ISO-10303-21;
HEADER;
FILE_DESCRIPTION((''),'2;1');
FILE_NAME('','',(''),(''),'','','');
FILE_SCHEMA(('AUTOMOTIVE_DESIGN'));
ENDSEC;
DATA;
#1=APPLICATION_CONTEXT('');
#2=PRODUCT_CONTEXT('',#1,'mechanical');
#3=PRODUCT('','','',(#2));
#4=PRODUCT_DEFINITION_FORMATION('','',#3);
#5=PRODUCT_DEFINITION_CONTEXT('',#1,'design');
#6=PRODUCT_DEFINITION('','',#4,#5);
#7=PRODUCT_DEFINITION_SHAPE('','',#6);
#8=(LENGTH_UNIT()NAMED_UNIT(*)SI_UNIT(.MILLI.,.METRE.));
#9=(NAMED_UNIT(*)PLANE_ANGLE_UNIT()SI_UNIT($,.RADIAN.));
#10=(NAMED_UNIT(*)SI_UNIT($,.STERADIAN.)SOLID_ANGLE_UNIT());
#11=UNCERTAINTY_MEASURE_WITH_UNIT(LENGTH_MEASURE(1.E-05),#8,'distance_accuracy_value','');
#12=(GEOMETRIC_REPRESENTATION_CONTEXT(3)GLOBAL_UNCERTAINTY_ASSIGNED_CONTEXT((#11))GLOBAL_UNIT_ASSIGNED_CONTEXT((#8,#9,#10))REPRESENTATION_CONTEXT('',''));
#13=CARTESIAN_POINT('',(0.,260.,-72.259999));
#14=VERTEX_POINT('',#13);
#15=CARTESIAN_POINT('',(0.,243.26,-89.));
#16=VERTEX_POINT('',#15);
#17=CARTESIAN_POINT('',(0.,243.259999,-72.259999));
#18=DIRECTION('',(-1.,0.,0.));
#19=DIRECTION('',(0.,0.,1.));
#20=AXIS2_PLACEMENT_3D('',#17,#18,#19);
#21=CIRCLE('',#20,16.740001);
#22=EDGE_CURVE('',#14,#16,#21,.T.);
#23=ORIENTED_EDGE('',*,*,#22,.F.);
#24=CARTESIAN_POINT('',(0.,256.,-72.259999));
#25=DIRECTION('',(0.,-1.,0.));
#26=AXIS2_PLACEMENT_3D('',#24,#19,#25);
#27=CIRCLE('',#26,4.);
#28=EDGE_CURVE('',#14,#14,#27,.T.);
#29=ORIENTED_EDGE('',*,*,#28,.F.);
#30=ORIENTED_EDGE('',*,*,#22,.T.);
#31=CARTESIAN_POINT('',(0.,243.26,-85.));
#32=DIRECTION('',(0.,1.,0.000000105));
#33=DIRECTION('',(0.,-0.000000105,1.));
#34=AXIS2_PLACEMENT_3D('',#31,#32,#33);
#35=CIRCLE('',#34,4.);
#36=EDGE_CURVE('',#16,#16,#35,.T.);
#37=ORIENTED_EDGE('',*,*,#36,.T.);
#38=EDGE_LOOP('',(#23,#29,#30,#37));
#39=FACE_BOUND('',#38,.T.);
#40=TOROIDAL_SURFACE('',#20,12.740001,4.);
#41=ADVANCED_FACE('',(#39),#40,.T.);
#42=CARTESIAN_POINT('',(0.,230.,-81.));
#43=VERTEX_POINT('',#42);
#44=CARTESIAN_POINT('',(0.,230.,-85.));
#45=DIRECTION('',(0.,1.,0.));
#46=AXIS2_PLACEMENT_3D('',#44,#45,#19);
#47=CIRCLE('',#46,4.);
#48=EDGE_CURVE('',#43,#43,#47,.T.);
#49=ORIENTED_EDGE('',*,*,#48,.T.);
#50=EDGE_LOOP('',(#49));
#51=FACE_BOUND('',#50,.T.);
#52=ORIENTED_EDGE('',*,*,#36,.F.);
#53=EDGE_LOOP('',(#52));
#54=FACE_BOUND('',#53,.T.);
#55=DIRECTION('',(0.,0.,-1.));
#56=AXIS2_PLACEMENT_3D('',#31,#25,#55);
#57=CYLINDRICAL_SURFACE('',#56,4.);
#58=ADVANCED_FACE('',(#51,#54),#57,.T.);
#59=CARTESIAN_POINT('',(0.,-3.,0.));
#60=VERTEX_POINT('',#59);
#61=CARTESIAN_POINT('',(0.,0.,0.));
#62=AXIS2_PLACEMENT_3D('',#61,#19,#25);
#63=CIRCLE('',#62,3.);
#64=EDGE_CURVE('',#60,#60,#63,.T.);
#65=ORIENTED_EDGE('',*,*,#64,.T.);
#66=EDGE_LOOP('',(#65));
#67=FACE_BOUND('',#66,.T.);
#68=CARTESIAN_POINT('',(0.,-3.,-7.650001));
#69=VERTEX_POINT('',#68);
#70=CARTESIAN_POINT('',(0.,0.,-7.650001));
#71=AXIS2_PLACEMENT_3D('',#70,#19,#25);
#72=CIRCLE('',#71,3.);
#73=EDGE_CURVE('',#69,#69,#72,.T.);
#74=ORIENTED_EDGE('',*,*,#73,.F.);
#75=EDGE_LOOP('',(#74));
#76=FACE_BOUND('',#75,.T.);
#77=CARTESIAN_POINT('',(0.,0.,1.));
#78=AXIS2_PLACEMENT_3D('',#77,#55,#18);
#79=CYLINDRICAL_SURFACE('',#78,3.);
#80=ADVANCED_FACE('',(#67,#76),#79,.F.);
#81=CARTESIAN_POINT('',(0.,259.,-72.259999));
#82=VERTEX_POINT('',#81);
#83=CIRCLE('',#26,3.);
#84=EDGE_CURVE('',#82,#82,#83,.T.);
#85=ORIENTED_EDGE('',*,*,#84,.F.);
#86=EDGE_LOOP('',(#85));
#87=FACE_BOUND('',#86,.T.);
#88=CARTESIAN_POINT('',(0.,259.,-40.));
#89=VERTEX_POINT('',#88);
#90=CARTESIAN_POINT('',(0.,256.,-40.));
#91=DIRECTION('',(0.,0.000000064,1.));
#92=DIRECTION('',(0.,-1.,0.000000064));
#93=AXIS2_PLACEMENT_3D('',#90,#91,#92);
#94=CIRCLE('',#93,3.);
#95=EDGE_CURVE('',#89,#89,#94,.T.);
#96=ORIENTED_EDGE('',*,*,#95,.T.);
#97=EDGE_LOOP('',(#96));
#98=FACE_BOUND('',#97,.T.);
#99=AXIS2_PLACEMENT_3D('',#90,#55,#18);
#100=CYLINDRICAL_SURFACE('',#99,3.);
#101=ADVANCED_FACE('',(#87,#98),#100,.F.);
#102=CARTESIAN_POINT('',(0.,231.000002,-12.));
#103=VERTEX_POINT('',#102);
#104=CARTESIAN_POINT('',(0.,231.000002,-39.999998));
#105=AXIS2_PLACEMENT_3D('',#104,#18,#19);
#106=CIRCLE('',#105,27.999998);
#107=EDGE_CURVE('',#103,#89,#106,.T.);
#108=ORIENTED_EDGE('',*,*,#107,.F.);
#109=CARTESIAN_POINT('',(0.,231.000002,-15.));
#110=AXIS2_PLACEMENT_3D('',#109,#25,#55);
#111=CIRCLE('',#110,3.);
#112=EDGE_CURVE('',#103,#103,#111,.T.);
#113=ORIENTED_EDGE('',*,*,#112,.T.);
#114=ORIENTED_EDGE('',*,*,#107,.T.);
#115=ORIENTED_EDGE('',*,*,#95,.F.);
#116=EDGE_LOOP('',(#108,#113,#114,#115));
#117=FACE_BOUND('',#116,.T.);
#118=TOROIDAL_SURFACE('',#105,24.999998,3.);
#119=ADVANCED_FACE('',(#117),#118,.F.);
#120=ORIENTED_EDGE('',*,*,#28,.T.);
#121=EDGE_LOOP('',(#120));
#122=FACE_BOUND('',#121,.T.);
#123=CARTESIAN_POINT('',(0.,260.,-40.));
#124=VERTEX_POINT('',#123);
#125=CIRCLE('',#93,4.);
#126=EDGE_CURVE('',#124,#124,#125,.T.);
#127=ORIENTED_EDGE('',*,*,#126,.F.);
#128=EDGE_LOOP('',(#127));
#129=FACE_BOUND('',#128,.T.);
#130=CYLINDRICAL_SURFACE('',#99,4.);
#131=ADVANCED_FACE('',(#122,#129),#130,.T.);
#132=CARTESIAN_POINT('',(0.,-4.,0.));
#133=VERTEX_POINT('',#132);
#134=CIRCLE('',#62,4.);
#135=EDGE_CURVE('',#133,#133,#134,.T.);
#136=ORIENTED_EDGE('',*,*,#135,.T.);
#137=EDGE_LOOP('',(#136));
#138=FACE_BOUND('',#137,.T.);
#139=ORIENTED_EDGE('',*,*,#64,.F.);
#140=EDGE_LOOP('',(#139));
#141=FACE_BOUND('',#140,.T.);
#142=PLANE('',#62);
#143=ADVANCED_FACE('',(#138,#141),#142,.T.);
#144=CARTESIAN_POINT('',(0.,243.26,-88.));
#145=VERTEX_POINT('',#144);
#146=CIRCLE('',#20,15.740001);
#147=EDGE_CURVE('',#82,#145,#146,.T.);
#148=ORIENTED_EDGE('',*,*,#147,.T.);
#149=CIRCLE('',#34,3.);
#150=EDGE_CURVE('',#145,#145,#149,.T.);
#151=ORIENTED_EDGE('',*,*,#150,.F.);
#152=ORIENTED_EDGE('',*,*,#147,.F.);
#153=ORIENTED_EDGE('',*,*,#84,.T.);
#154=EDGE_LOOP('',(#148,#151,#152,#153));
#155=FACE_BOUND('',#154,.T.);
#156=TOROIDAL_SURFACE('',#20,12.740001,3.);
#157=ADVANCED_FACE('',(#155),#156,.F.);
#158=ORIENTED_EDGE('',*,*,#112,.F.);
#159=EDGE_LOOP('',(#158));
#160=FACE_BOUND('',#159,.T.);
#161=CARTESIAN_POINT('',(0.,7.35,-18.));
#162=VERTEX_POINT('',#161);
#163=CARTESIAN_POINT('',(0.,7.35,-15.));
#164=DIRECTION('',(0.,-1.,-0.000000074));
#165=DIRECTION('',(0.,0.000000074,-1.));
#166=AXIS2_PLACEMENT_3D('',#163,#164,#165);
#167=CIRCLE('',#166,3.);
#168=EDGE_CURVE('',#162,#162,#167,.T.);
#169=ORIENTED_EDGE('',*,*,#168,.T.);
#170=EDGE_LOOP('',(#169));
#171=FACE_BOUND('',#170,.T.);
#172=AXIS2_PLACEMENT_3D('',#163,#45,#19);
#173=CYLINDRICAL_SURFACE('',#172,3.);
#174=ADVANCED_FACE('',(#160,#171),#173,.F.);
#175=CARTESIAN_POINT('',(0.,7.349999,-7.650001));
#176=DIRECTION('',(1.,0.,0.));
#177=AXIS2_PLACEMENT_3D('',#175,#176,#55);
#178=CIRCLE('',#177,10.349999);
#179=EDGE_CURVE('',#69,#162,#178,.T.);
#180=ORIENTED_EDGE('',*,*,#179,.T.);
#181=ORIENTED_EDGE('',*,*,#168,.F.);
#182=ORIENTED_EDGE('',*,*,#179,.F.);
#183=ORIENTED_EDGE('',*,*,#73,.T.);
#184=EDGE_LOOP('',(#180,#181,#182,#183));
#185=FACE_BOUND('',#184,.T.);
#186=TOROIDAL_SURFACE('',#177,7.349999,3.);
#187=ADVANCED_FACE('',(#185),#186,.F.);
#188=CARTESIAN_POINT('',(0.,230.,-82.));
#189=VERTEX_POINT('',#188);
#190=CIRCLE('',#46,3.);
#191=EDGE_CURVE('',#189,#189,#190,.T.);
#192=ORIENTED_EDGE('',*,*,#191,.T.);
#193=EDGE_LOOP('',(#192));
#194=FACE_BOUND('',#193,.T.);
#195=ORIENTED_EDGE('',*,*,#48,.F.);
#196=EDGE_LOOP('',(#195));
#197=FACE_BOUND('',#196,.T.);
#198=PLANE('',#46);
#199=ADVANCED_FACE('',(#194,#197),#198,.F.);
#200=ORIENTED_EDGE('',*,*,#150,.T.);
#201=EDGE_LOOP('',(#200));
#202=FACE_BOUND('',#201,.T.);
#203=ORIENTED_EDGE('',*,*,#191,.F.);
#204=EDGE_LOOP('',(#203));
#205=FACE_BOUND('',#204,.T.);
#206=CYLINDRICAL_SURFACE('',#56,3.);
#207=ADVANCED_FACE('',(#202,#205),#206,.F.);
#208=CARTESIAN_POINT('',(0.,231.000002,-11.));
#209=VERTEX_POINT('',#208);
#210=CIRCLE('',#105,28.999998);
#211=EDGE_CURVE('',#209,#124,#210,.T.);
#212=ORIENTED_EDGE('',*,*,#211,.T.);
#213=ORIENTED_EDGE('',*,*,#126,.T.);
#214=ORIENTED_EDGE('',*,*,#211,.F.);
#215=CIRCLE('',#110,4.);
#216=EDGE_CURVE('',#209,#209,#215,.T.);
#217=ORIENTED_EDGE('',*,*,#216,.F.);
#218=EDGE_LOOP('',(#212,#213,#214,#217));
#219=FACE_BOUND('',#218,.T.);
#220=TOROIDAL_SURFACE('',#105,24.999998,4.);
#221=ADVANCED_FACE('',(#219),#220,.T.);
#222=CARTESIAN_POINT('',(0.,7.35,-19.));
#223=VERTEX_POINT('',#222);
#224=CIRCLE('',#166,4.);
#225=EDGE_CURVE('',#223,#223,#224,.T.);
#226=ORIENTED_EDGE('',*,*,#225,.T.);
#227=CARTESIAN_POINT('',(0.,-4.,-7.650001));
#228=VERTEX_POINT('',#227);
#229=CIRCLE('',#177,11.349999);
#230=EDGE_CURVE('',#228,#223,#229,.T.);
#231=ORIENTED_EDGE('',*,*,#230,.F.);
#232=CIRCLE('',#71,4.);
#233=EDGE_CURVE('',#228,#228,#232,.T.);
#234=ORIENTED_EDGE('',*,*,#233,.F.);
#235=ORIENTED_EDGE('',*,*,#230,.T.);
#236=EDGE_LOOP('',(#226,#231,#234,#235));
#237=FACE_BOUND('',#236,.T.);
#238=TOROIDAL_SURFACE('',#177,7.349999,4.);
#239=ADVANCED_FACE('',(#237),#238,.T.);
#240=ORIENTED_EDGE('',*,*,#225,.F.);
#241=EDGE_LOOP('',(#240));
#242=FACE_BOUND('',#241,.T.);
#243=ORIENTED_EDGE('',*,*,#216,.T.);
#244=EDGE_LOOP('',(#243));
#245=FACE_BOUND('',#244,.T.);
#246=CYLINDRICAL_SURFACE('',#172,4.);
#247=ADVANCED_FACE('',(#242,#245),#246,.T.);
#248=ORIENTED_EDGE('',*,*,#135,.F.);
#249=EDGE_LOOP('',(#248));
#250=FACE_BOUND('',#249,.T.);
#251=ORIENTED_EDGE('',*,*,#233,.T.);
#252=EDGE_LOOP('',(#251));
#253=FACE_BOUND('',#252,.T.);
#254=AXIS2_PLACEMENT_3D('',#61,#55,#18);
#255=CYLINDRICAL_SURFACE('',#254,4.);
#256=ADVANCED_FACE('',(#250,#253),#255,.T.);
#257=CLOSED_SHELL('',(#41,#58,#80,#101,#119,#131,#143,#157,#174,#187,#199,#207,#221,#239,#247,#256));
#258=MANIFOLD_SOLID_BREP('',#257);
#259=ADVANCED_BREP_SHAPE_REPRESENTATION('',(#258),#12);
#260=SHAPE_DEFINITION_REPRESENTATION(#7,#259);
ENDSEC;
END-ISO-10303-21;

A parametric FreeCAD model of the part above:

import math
import FreeCAD as App
import Part
import Sketcher

V = App.Vector
Q = App.Units.Quantity

doc = App.newDocument("Part")
body = doc.addObject("PartDesign::Body", "Body")

# Sketch on XY plane
sketch1 = body.newObject("Sketcher::SketchObject", "Sketch")
sketch1.AttachmentSupport = (doc.getObject("XY_Plane"), [""])
sketch1.MapMode = "FlatFace"
sketch1.addGeometry(Part.Circle(V(0, 0, 0), V(0, 0, 1), 4), False)
sketch1.addConstraint([
    Sketcher.Constraint("Coincident", 0, 3, -1, 1),
    Sketcher.Constraint("Diameter", 0, Q("8 mm")),
])

# Sketch on YZ plane
sketch2 = body.newObject("Sketcher::SketchObject", "Sketch001")
sketch2.AttachmentSupport = (doc.getObject("YZ_Plane"), [""])
sketch2.MapMode = "FlatFace"
sketch2.addGeometry([
    Part.LineSegment(V(0, 0, 0), V(0, -8, 0)),  # 0
    Part.ArcOfCircle(Part.Circle(V(7, -8, 0), V(0, 0, 1), 7), math.radians(180), math.radians(270)),  # 1
    Part.LineSegment(V(7, -15, 0), V(231, -15, 0)),  # 2
    Part.ArcOfCircle(Part.Circle(V(231, -40, 0), V(0, 0, 1), 25), math.radians(0), math.radians(90)),  # 3
    Part.LineSegment(V(256, -40, 0), V(256, -72, 0)),  # 4
    Part.ArcOfCircle(Part.Circle(V(243, -72, 0), V(0, 0, 1), 13), math.radians(-90), math.radians(0)),  # 5
    Part.LineSegment(V(243, -85, 0), V(230, -85, 0)),  # 6
], False)
sketch2.addConstraint([
    Sketcher.Constraint("Tangent", 0, 2, 1, 1),
    Sketcher.Constraint("Tangent", 1, 2, 2, 1),
    Sketcher.Constraint("Tangent", 2, 2, 3, 2),
    Sketcher.Constraint("Tangent", 3, 1, 4, 1),
    Sketcher.Constraint("Tangent", 4, 2, 5, 2),
    Sketcher.Constraint("Tangent", 5, 1, 6, 1),
    Sketcher.Constraint("Vertical", 0),
    Sketcher.Constraint("Horizontal", 2),
    Sketcher.Constraint("Vertical", 4),
    Sketcher.Constraint("Horizontal", 6),
    Sketcher.Constraint("Coincident", 0, 1, -1, 1),
    Sketcher.Constraint("Radius", 3, Q("24.999998 mm")),
    Sketcher.Constraint("Radius", 1, Q("7.349999 mm")),
    Sketcher.Constraint("Radius", 5, Q("12.740001 mm")),
    Sketcher.Constraint("DistanceX", -1, 1, 3, 3, Q("231.000002 mm")),
    Sketcher.Constraint("DistanceY", 3, 3, -1, 1, Q("39.999998 mm")),
    Sketcher.Constraint("DistanceY", 5, 1, -1, 1, Q("85 mm")),
    Sketcher.Constraint("DistanceX", -1, 1, 6, 2, Q("230 mm")),
])
doc.recompute()

additivepipe = body.newObject("PartDesign::AdditivePipe", "AdditivePipe")
additivepipe.Profile = sketch1
additivepipe.Spine = (sketch2, ["Edge1", "Edge2", "Edge3", "Edge4", "Edge5", "Edge6", "Edge7"])

# Sketch on XY plane
sketch3 = body.newObject("Sketcher::SketchObject", "Sketch002")
sketch3.AttachmentSupport = (doc.getObject("XY_Plane"), [""])
sketch3.MapMode = "FlatFace"
sketch3.addGeometry(Part.Circle(V(0, 0, 0), V(0, 0, 1), 3), False)
sketch3.addConstraint([
    Sketcher.Constraint("Coincident", 0, 3, -1, 1),
    Sketcher.Constraint("Diameter", 0, Q("6 mm")),
])

# Sketch on YZ plane
sketch4 = body.newObject("Sketcher::SketchObject", "Sketch003")
sketch4.AttachmentSupport = (doc.getObject("YZ_Plane"), [""])
sketch4.MapMode = "FlatFace"
sketch4.addGeometry([
    Part.LineSegment(V(0, 0, 0), V(0, -8, 0)),  # 0
    Part.ArcOfCircle(Part.Circle(V(7, -8, 0), V(0, 0, 1), 7), math.radians(180), math.radians(270)),  # 1
    Part.LineSegment(V(7, -15, 0), V(231, -15, 0)),  # 2
    Part.ArcOfCircle(Part.Circle(V(231, -40, 0), V(0, 0, 1), 25), math.radians(0), math.radians(90)),  # 3
    Part.LineSegment(V(256, -40, 0), V(256, -72, 0)),  # 4
    Part.ArcOfCircle(Part.Circle(V(243, -72, 0), V(0, 0, 1), 13), math.radians(-90), math.radians(0)),  # 5
    Part.LineSegment(V(243, -85, 0), V(230, -85, 0)),  # 6
], False)
sketch4.addConstraint([
    Sketcher.Constraint("Tangent", 0, 2, 1, 1),
    Sketcher.Constraint("Tangent", 1, 2, 2, 1),
    Sketcher.Constraint("Tangent", 2, 2, 3, 2),
    Sketcher.Constraint("Tangent", 3, 1, 4, 1),
    Sketcher.Constraint("Tangent", 4, 2, 5, 2),
    Sketcher.Constraint("Tangent", 5, 1, 6, 1),
    Sketcher.Constraint("Vertical", 0),
    Sketcher.Constraint("Horizontal", 2),
    Sketcher.Constraint("Vertical", 4),
    Sketcher.Constraint("Horizontal", 6),
    Sketcher.Constraint("Coincident", 0, 1, -1, 1),
    Sketcher.Constraint("Radius", 3, Q("24.999998 mm")),
    Sketcher.Constraint("Radius", 1, Q("7.349999 mm")),
    Sketcher.Constraint("Radius", 5, Q("12.740001 mm")),
    Sketcher.Constraint("DistanceX", -1, 1, 3, 3, Q("231.000002 mm")),
    Sketcher.Constraint("DistanceY", 3, 3, -1, 1, Q("39.999998 mm")),
    Sketcher.Constraint("DistanceY", 5, 1, -1, 1, Q("85 mm")),
    Sketcher.Constraint("DistanceX", -1, 1, 6, 2, Q("230 mm")),
])
doc.recompute()

subtractivepipe = body.newObject("PartDesign::SubtractivePipe", "SubtractivePipe")
subtractivepipe.Profile = sketch3
subtractivepipe.Spine = (sketch4, ["Edge1", "Edge2", "Edge3", "Edge4", "Edge5", "Edge6", "Edge7"])

doc.recompute()
